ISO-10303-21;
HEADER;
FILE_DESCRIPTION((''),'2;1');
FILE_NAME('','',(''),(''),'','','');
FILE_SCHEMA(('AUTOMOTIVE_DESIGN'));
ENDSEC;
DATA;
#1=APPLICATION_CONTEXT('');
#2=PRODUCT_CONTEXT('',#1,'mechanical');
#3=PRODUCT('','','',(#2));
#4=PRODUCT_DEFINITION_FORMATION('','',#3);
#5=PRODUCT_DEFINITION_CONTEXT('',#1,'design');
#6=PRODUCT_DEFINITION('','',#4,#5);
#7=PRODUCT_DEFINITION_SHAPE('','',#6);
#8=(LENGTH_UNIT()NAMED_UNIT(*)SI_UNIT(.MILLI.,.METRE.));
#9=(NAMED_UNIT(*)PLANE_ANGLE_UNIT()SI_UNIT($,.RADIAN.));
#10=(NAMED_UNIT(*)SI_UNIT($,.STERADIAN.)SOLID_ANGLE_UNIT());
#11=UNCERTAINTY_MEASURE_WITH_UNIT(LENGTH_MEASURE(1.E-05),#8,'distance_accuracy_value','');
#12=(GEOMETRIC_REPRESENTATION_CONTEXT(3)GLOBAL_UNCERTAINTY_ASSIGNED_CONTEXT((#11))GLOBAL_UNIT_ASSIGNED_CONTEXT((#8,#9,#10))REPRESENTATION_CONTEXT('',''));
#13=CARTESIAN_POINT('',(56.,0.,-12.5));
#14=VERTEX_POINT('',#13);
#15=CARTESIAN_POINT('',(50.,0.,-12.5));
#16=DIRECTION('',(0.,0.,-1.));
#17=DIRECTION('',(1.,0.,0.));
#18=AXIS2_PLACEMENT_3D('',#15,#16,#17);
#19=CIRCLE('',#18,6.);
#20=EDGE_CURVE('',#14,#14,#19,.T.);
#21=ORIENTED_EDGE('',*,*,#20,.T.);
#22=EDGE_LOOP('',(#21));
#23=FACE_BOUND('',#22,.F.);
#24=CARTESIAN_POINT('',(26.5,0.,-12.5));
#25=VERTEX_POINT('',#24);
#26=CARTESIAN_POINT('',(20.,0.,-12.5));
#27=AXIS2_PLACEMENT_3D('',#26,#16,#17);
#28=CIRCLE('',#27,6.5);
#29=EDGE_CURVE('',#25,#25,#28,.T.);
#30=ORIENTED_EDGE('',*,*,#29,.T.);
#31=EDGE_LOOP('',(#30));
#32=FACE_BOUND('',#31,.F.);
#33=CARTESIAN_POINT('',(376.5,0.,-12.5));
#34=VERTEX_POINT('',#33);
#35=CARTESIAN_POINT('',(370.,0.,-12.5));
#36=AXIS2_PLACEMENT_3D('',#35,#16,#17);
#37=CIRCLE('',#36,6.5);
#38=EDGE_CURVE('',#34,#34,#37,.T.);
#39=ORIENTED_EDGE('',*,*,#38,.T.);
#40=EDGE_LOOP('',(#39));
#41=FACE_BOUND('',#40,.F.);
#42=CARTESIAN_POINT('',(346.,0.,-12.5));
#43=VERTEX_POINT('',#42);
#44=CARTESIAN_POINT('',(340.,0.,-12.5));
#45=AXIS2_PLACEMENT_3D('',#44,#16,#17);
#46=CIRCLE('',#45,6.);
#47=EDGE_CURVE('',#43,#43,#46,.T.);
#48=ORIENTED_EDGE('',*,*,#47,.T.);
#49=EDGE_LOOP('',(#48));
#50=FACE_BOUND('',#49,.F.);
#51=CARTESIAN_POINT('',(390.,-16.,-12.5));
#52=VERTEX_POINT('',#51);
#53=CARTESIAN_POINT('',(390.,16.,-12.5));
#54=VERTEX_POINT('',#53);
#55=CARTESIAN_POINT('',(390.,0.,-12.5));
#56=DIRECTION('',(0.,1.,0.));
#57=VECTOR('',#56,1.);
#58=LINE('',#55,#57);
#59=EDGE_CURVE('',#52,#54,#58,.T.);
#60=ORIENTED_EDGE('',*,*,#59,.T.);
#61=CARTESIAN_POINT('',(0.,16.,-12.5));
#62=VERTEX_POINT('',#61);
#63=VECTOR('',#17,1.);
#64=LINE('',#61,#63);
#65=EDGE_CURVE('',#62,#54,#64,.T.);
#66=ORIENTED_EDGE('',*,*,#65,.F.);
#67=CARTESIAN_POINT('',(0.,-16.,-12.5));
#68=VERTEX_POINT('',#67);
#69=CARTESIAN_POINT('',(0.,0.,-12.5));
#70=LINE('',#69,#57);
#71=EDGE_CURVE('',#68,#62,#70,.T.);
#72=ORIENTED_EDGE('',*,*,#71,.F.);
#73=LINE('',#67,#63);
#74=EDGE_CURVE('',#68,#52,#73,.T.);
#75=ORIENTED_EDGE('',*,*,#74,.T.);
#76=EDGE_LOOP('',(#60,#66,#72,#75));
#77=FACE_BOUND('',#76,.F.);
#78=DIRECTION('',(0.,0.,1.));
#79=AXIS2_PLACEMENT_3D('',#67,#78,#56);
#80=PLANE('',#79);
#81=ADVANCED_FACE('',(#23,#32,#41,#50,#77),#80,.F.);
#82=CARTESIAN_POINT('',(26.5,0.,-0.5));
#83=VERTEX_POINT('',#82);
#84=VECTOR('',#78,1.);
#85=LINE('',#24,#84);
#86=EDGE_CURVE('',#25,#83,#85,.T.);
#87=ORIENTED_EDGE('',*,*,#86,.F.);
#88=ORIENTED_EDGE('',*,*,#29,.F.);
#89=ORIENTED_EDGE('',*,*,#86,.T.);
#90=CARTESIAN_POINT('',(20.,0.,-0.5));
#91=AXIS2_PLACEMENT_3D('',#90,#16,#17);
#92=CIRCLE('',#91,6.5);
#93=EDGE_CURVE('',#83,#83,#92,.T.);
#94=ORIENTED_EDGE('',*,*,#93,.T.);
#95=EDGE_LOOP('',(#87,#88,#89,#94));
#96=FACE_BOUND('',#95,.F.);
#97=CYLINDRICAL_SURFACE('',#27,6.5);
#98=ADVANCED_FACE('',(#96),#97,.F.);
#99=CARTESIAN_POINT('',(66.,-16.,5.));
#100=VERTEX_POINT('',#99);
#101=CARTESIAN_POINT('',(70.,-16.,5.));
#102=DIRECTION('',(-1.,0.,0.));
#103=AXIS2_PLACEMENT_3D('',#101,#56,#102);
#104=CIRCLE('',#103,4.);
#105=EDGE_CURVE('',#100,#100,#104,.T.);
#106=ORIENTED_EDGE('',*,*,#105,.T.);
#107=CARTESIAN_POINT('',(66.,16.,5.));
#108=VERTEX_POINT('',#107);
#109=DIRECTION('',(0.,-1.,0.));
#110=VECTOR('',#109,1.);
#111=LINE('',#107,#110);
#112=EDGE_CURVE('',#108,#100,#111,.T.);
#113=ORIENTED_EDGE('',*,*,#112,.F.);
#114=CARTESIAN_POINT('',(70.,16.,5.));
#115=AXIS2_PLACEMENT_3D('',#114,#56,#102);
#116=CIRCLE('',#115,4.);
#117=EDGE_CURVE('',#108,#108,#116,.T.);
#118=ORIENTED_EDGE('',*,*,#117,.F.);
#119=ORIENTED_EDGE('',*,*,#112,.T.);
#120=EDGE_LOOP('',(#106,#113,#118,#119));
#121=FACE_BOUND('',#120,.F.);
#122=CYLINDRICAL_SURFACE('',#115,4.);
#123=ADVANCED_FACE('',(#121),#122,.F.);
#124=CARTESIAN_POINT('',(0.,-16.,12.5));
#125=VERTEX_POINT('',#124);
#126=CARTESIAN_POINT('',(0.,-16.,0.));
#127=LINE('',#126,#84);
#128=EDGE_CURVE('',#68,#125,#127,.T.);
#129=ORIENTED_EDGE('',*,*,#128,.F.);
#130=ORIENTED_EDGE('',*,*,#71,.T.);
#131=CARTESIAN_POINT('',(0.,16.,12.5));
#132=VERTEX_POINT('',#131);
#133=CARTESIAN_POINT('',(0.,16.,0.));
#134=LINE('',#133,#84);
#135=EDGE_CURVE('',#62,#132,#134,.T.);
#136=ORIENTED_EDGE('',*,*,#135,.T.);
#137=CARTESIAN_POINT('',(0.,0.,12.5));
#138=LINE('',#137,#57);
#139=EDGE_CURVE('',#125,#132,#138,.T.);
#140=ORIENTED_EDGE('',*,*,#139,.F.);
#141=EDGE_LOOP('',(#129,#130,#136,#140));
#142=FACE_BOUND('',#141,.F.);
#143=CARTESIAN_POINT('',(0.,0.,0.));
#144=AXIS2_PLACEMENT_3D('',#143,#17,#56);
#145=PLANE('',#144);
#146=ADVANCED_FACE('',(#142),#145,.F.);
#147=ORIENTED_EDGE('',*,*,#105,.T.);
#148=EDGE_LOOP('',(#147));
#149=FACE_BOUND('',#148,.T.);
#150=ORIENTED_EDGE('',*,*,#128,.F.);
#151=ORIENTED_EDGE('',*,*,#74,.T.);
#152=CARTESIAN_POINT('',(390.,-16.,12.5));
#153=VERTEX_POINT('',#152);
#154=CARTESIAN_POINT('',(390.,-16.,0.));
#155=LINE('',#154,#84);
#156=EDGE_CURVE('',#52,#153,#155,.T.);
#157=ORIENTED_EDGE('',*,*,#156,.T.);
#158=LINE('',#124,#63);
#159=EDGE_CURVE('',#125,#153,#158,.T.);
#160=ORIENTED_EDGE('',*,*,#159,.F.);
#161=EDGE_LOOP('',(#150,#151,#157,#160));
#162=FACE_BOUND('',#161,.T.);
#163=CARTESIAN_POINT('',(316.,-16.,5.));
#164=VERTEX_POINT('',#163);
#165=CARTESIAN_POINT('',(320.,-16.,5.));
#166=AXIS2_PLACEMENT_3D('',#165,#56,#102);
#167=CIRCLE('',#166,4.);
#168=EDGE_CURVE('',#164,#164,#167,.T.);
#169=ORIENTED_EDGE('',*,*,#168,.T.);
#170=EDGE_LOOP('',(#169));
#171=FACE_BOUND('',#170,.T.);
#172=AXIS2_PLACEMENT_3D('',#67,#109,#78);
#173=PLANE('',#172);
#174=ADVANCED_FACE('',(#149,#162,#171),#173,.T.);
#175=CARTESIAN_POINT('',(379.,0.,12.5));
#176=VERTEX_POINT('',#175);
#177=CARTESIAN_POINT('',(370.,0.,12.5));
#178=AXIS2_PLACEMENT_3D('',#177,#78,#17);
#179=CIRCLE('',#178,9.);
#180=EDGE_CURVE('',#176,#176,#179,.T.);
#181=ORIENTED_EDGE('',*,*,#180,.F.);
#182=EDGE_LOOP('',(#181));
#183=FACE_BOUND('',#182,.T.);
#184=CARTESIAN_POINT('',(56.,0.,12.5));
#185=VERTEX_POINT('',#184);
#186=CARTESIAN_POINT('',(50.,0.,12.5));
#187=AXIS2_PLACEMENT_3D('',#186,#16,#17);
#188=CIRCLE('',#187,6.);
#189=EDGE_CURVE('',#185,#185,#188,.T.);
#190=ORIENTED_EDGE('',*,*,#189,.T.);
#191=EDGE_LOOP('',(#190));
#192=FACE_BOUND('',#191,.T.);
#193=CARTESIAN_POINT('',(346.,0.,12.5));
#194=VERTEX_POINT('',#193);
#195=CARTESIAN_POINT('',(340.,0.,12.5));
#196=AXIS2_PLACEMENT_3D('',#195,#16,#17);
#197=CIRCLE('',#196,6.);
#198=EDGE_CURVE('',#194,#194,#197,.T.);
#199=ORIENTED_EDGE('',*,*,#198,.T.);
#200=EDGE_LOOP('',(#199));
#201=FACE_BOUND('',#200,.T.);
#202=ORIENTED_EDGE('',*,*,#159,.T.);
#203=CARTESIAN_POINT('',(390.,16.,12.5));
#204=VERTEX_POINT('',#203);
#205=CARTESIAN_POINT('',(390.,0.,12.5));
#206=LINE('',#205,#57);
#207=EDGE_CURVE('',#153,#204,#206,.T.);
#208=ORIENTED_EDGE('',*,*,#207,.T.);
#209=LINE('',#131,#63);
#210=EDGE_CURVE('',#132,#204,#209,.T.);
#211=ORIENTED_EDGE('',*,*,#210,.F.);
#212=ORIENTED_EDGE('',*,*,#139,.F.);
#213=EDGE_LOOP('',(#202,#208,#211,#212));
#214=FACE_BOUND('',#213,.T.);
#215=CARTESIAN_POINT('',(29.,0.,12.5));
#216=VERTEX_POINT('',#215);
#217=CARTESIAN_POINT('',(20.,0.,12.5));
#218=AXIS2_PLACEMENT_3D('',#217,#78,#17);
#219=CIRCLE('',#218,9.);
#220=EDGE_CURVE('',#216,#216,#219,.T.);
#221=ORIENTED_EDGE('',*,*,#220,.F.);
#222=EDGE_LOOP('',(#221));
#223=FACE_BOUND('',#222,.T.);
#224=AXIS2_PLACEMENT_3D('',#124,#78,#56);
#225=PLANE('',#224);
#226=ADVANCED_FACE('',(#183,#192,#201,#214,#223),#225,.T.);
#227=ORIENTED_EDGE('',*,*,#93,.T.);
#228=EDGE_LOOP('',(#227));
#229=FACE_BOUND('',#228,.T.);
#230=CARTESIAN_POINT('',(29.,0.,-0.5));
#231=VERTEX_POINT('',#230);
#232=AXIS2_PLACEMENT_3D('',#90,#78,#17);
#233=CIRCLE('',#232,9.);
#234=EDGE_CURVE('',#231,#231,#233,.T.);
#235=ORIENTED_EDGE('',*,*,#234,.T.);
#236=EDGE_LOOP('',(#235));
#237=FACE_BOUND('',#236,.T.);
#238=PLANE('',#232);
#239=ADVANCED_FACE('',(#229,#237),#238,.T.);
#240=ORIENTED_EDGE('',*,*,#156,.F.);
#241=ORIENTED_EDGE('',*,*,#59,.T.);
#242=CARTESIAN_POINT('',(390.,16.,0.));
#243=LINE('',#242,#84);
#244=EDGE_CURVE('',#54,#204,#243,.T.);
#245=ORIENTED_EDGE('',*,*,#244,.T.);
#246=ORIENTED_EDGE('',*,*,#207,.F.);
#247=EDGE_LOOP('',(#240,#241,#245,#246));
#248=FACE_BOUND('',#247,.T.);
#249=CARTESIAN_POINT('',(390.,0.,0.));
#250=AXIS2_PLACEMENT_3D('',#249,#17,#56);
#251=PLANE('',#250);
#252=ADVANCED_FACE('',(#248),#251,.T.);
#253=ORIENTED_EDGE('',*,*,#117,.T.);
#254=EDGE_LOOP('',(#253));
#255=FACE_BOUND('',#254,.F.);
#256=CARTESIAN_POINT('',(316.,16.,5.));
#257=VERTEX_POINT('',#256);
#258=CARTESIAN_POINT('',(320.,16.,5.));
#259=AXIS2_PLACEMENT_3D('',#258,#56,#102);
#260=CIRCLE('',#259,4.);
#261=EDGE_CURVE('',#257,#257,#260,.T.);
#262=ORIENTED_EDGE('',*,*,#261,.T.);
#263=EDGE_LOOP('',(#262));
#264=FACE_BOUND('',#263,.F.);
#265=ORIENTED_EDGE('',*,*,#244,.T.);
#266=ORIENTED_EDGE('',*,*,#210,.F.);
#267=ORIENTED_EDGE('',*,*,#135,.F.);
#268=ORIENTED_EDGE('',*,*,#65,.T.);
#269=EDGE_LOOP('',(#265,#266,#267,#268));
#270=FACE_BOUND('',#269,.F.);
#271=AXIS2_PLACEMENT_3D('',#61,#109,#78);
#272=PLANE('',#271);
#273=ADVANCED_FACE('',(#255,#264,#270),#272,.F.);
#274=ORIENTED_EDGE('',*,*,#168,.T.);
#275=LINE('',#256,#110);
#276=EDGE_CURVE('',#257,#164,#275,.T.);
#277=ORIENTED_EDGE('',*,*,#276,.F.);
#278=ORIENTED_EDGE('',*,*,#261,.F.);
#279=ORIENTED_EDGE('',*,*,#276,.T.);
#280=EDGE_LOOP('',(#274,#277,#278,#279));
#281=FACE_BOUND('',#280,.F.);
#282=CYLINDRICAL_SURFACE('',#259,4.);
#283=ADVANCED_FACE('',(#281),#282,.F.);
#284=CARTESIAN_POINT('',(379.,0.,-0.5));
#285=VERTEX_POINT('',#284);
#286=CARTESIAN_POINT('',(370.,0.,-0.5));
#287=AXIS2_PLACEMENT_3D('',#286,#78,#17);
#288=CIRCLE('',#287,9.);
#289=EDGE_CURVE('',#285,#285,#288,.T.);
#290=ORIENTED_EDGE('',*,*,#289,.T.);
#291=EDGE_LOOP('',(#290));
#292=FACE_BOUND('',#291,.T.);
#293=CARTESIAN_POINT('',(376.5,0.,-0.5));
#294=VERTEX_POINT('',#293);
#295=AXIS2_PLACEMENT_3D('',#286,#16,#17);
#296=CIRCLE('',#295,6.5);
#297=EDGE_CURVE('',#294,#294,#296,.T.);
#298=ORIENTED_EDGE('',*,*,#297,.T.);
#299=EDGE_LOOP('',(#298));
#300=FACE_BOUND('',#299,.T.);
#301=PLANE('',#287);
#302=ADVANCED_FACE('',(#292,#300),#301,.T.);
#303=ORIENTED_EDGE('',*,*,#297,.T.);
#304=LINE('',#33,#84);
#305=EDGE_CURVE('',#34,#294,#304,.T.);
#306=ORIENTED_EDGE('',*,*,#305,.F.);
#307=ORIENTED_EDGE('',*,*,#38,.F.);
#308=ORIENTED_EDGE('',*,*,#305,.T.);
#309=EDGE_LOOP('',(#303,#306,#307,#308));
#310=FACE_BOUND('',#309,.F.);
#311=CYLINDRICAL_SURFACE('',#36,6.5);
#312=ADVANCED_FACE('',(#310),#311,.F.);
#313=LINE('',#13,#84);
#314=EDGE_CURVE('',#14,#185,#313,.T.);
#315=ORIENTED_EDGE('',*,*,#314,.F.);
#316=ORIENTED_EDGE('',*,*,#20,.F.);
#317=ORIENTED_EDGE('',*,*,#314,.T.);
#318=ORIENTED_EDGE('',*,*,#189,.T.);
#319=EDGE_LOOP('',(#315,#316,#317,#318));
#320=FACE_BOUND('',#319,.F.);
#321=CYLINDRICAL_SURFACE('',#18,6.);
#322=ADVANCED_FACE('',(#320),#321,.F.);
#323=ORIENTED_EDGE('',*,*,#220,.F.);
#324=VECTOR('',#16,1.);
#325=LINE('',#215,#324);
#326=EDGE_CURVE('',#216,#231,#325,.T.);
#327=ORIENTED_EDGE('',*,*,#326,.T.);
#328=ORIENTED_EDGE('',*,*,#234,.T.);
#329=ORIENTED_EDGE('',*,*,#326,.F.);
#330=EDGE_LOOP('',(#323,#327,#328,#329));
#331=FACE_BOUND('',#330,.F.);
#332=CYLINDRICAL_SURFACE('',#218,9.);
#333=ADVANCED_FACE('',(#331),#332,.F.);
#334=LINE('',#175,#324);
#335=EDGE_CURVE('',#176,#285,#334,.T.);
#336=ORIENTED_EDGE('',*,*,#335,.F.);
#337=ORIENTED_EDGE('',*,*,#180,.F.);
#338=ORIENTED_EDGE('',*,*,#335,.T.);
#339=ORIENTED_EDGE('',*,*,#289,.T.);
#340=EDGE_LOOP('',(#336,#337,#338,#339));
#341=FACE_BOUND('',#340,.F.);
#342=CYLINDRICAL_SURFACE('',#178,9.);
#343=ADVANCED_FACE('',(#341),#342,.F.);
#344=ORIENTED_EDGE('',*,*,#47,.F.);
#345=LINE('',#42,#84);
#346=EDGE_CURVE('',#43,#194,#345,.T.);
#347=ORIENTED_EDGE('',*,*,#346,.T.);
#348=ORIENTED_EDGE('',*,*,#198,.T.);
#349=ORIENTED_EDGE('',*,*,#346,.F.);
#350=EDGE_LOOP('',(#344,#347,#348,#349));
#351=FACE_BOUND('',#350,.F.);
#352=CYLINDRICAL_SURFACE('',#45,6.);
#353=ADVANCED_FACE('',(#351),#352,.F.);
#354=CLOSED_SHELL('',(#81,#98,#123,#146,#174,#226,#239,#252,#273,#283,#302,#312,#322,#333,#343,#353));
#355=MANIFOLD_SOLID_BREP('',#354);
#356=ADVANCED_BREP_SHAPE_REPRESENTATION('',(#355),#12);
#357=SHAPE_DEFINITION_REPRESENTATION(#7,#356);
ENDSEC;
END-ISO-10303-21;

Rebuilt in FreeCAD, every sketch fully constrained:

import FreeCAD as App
import Part
import Sketcher
from FreeCAD import Vector
Q = App.Units.Quantity


def add_polygon(sketch, points):
    """Adds a closed chain of lines whose ends are joined by coincident constraints."""
    first, n = sketch.GeometryCount, len(points)
    for a, b in zip(points, points[1:] + points[:1]):
        sketch.addGeometry(Part.LineSegment(App.Vector(*a, 0), App.Vector(*b, 0)), False)
    for i in range(n):
        sketch.addConstraint(Sketcher.Constraint("Coincident", first + i, 2, first + (i + 1) % n, 1))

doc = App.newDocument("Part")
params = doc.addObject("Spreadsheet::Sheet", "Params")
for row, (alias, value) in enumerate([
    ("sketch1_width", "32 mm"),
    ("sketch1_height", "25 mm"),
    ("pad1_length", "390 mm"),
    ("sketch2_diameter", "8 mm"),
    ("pocket1_length", "93 mm"),
    ("sketch3_diameter", "13 mm"),
    ("pocket2_length", "40.8 mm"),
    ("sketch4_diameter", "18 mm"),
    ("pocket3_length", "13 mm"),
    ("sketch5_diameter", "12 mm"),
    ("pocket4_length", "76.1 mm"),
], start=1):
    params.set(f"A{row}", alias)
    params.set(f"B{row}", "=" + value)
    params.setAlias(f"B{row}", alias)

body = doc.addObject("PartDesign::Body", "Body")

sketch1 = body.newObject("Sketcher::SketchObject", "Sketch")
sketch1.AttachmentSupport = (doc.getObject("YZ_Plane"), [""])
sketch1.MapMode = "FlatFace"
add_polygon(sketch1, [(-16, 12.5), (-16, -12.5), (16, -12.5), (16, 12.5)])
sketch1.addConstraint(Sketcher.Constraint("Vertical", 0))
sketch1.addConstraint(Sketcher.Constraint("Horizontal", 1))
sketch1.addConstraint(Sketcher.Constraint("Vertical", 2))
sketch1.addConstraint(Sketcher.Constraint("Horizontal", 3))
sketch1.addConstraint(Sketcher.Constraint("Symmetric", 0, 2, 2, 2, -1, 1))
sketch1.addConstraint(Sketcher.Constraint("DistanceX", 1, 1, 1, 2, Q("32 mm")))
sketch1.addConstraint(Sketcher.Constraint("DistanceY", 0, 2, 0, 1, Q("25 mm")))
sketch1.setExpression("Constraints[9]", "Params.sketch1_width")
sketch1.setExpression("Constraints[10]", "Params.sketch1_height")
pad1 = body.newObject("PartDesign::Pad", "Pad")
pad1.Profile = sketch1
pad1.setExpression("Length", "Params.pad1_length")

sketch2 = body.newObject("Sketcher::SketchObject", "Sketch001")
sketch2.AttachmentSupport = (doc.getObject("XZ_Plane"), [""])
sketch2.MapMode = "FlatFace"
sketch2.AttachmentOffset = App.Placement(Vector(0, 0, -16), App.Rotation())
sketch2.addGeometry(Part.Circle(Vector(320, 5, 0), Vector(0, 0, 1), 4), False)
sketch2.addGeometry(Part.Circle(Vector(70, 5, 0), Vector(0, 0, 1), 4), False)
sketch2.addConstraint(Sketcher.Constraint("Equal", 0, 1))
sketch2.addConstraint(Sketcher.Constraint("Horizontal", 0, 3, 1, 3))
sketch2.addConstraint(Sketcher.Constraint("Diameter", 0, Q("8 mm")))
sketch2.addConstraint(Sketcher.Constraint("DistanceX", -1, 1, 0, 3, Q("320 mm")))
sketch2.addConstraint(Sketcher.Constraint("DistanceY", -1, 1, 0, 3, Q("5 mm")))
sketch2.addConstraint(Sketcher.Constraint("DistanceX", -1, 1, 1, 3, Q("70 mm")))
sketch2.setExpression("Constraints[2]", "Params.sketch2_diameter")
pocket1 = body.newObject("PartDesign::Pocket", "Pocket")
pocket1.Profile = sketch2
pocket1.setExpression("Length", "Params.pocket1_length")
pocket1.Reversed = True

sketch3 = body.newObject("Sketcher::SketchObject", "Sketch002")
sketch3.AttachmentSupport = (doc.getObject("XY_Plane"), [""])
sketch3.MapMode = "FlatFace"
sketch3.AttachmentOffset = App.Placement(Vector(0, 0, -12.5), App.Rotation())
sketch3.addGeometry(Part.Circle(Vector(20, 0, 0), Vector(0, 0, 1), 6.5), False)
sketch3.addGeometry(Part.Circle(Vector(370, 0, 0), Vector(0, 0, 1), 6.5), False)
sketch3.addConstraint(Sketcher.Constraint("Equal", 0, 1))
sketch3.addConstraint(Sketcher.Constraint("PointOnObject", 0, 3, -1))
sketch3.addConstraint(Sketcher.Constraint("PointOnObject", 1, 3, -1))
sketch3.addConstraint(Sketcher.Constraint("Diameter", 0, Q("13 mm")))
sketch3.addConstraint(Sketcher.Constraint("DistanceX", -1, 1, 0, 3, Q("20 mm")))
sketch3.addConstraint(Sketcher.Constraint("DistanceX", -1, 1, 1, 3, Q("370 mm")))
sketch3.setExpression("Constraints[3]", "Params.sketch3_diameter")
pocket2 = body.newObject("PartDesign::Pocket", "Pocket001")
pocket2.Profile = sketch3
pocket2.setExpression("Length", "Params.pocket2_length")
pocket2.Reversed = True

sketch4 = body.newObject("Sketcher::SketchObject", "Sketch003")
sketch4.AttachmentSupport = (doc.getObject("XY_Plane"), [""])
sketch4.MapMode = "FlatFace"
sketch4.AttachmentOffset = App.Placement(Vector(0, 0, 12.5), App.Rotation())
sketch4.addGeometry(Part.Circle(Vector(20, 0, 0), Vector(0, 0, 1), 9), False)
sketch4.addGeometry(Part.Circle(Vector(370, 0, 0), Vector(0, 0, 1), 9), False)
sketch4.addConstraint(Sketcher.Constraint("Equal", 0, 1))
sketch4.addConstraint(Sketcher.Constraint("PointOnObject", 0, 3, -1))
sketch4.addConstraint(Sketcher.Constraint("PointOnObject", 1, 3, -1))
sketch4.addConstraint(Sketcher.Constraint("Diameter", 0, Q("18 mm")))
sketch4.addConstraint(Sketcher.Constraint("DistanceX", -1, 1, 0, 3, Q("20 mm")))
sketch4.addConstraint(Sketcher.Constraint("DistanceX", -1, 1, 1, 3, Q("370 mm")))
sketch4.setExpression("Constraints[3]", "Params.sketch4_diameter")
pocket3 = body.newObject("PartDesign::Pocket", "Pocket002")
pocket3.Profile = sketch4
pocket3.setExpression("Length", "Params.pocket3_length")

sketch5 = body.newObject("Sketcher::SketchObject", "Sketch004")
sketch5.AttachmentSupport = (doc.getObject("XY_Plane"), [""])
sketch5.MapMode = "FlatFace"
sketch5.AttachmentOffset = App.Placement(Vector(0, 0, -12.5), App.Rotation())
sketch5.addGeometry(Part.Circle(Vector(50, 0, 0), Vector(0, 0, 1), 6), False)
sketch5.addGeometry(Part.Circle(Vector(340, 0, 0), Vector(0, 0, 1), 6), False)
sketch5.addConstraint(Sketcher.Constraint("Equal", 0, 1))
sketch5.addConstraint(Sketcher.Constraint("PointOnObject", 0, 3, -1))
sketch5.addConstraint(Sketcher.Constraint("PointOnObject", 1, 3, -1))
sketch5.addConstraint(Sketcher.Constraint("Diameter", 0, Q("12 mm")))
sketch5.addConstraint(Sketcher.Constraint("DistanceX", -1, 1, 0, 3, Q("50 mm")))
sketch5.addConstraint(Sketcher.Constraint("DistanceX", -1, 1, 1, 3, Q("340 mm")))
sketch5.setExpression("Constraints[3]", "Params.sketch5_diameter")
pocket4 = body.newObject("PartDesign::Pocket", "Pocket003")
pocket4.Profile = sketch5
pocket4.setExpression("Length", "Params.pocket4_length")
pocket4.Reversed = True

doc.recompute()
